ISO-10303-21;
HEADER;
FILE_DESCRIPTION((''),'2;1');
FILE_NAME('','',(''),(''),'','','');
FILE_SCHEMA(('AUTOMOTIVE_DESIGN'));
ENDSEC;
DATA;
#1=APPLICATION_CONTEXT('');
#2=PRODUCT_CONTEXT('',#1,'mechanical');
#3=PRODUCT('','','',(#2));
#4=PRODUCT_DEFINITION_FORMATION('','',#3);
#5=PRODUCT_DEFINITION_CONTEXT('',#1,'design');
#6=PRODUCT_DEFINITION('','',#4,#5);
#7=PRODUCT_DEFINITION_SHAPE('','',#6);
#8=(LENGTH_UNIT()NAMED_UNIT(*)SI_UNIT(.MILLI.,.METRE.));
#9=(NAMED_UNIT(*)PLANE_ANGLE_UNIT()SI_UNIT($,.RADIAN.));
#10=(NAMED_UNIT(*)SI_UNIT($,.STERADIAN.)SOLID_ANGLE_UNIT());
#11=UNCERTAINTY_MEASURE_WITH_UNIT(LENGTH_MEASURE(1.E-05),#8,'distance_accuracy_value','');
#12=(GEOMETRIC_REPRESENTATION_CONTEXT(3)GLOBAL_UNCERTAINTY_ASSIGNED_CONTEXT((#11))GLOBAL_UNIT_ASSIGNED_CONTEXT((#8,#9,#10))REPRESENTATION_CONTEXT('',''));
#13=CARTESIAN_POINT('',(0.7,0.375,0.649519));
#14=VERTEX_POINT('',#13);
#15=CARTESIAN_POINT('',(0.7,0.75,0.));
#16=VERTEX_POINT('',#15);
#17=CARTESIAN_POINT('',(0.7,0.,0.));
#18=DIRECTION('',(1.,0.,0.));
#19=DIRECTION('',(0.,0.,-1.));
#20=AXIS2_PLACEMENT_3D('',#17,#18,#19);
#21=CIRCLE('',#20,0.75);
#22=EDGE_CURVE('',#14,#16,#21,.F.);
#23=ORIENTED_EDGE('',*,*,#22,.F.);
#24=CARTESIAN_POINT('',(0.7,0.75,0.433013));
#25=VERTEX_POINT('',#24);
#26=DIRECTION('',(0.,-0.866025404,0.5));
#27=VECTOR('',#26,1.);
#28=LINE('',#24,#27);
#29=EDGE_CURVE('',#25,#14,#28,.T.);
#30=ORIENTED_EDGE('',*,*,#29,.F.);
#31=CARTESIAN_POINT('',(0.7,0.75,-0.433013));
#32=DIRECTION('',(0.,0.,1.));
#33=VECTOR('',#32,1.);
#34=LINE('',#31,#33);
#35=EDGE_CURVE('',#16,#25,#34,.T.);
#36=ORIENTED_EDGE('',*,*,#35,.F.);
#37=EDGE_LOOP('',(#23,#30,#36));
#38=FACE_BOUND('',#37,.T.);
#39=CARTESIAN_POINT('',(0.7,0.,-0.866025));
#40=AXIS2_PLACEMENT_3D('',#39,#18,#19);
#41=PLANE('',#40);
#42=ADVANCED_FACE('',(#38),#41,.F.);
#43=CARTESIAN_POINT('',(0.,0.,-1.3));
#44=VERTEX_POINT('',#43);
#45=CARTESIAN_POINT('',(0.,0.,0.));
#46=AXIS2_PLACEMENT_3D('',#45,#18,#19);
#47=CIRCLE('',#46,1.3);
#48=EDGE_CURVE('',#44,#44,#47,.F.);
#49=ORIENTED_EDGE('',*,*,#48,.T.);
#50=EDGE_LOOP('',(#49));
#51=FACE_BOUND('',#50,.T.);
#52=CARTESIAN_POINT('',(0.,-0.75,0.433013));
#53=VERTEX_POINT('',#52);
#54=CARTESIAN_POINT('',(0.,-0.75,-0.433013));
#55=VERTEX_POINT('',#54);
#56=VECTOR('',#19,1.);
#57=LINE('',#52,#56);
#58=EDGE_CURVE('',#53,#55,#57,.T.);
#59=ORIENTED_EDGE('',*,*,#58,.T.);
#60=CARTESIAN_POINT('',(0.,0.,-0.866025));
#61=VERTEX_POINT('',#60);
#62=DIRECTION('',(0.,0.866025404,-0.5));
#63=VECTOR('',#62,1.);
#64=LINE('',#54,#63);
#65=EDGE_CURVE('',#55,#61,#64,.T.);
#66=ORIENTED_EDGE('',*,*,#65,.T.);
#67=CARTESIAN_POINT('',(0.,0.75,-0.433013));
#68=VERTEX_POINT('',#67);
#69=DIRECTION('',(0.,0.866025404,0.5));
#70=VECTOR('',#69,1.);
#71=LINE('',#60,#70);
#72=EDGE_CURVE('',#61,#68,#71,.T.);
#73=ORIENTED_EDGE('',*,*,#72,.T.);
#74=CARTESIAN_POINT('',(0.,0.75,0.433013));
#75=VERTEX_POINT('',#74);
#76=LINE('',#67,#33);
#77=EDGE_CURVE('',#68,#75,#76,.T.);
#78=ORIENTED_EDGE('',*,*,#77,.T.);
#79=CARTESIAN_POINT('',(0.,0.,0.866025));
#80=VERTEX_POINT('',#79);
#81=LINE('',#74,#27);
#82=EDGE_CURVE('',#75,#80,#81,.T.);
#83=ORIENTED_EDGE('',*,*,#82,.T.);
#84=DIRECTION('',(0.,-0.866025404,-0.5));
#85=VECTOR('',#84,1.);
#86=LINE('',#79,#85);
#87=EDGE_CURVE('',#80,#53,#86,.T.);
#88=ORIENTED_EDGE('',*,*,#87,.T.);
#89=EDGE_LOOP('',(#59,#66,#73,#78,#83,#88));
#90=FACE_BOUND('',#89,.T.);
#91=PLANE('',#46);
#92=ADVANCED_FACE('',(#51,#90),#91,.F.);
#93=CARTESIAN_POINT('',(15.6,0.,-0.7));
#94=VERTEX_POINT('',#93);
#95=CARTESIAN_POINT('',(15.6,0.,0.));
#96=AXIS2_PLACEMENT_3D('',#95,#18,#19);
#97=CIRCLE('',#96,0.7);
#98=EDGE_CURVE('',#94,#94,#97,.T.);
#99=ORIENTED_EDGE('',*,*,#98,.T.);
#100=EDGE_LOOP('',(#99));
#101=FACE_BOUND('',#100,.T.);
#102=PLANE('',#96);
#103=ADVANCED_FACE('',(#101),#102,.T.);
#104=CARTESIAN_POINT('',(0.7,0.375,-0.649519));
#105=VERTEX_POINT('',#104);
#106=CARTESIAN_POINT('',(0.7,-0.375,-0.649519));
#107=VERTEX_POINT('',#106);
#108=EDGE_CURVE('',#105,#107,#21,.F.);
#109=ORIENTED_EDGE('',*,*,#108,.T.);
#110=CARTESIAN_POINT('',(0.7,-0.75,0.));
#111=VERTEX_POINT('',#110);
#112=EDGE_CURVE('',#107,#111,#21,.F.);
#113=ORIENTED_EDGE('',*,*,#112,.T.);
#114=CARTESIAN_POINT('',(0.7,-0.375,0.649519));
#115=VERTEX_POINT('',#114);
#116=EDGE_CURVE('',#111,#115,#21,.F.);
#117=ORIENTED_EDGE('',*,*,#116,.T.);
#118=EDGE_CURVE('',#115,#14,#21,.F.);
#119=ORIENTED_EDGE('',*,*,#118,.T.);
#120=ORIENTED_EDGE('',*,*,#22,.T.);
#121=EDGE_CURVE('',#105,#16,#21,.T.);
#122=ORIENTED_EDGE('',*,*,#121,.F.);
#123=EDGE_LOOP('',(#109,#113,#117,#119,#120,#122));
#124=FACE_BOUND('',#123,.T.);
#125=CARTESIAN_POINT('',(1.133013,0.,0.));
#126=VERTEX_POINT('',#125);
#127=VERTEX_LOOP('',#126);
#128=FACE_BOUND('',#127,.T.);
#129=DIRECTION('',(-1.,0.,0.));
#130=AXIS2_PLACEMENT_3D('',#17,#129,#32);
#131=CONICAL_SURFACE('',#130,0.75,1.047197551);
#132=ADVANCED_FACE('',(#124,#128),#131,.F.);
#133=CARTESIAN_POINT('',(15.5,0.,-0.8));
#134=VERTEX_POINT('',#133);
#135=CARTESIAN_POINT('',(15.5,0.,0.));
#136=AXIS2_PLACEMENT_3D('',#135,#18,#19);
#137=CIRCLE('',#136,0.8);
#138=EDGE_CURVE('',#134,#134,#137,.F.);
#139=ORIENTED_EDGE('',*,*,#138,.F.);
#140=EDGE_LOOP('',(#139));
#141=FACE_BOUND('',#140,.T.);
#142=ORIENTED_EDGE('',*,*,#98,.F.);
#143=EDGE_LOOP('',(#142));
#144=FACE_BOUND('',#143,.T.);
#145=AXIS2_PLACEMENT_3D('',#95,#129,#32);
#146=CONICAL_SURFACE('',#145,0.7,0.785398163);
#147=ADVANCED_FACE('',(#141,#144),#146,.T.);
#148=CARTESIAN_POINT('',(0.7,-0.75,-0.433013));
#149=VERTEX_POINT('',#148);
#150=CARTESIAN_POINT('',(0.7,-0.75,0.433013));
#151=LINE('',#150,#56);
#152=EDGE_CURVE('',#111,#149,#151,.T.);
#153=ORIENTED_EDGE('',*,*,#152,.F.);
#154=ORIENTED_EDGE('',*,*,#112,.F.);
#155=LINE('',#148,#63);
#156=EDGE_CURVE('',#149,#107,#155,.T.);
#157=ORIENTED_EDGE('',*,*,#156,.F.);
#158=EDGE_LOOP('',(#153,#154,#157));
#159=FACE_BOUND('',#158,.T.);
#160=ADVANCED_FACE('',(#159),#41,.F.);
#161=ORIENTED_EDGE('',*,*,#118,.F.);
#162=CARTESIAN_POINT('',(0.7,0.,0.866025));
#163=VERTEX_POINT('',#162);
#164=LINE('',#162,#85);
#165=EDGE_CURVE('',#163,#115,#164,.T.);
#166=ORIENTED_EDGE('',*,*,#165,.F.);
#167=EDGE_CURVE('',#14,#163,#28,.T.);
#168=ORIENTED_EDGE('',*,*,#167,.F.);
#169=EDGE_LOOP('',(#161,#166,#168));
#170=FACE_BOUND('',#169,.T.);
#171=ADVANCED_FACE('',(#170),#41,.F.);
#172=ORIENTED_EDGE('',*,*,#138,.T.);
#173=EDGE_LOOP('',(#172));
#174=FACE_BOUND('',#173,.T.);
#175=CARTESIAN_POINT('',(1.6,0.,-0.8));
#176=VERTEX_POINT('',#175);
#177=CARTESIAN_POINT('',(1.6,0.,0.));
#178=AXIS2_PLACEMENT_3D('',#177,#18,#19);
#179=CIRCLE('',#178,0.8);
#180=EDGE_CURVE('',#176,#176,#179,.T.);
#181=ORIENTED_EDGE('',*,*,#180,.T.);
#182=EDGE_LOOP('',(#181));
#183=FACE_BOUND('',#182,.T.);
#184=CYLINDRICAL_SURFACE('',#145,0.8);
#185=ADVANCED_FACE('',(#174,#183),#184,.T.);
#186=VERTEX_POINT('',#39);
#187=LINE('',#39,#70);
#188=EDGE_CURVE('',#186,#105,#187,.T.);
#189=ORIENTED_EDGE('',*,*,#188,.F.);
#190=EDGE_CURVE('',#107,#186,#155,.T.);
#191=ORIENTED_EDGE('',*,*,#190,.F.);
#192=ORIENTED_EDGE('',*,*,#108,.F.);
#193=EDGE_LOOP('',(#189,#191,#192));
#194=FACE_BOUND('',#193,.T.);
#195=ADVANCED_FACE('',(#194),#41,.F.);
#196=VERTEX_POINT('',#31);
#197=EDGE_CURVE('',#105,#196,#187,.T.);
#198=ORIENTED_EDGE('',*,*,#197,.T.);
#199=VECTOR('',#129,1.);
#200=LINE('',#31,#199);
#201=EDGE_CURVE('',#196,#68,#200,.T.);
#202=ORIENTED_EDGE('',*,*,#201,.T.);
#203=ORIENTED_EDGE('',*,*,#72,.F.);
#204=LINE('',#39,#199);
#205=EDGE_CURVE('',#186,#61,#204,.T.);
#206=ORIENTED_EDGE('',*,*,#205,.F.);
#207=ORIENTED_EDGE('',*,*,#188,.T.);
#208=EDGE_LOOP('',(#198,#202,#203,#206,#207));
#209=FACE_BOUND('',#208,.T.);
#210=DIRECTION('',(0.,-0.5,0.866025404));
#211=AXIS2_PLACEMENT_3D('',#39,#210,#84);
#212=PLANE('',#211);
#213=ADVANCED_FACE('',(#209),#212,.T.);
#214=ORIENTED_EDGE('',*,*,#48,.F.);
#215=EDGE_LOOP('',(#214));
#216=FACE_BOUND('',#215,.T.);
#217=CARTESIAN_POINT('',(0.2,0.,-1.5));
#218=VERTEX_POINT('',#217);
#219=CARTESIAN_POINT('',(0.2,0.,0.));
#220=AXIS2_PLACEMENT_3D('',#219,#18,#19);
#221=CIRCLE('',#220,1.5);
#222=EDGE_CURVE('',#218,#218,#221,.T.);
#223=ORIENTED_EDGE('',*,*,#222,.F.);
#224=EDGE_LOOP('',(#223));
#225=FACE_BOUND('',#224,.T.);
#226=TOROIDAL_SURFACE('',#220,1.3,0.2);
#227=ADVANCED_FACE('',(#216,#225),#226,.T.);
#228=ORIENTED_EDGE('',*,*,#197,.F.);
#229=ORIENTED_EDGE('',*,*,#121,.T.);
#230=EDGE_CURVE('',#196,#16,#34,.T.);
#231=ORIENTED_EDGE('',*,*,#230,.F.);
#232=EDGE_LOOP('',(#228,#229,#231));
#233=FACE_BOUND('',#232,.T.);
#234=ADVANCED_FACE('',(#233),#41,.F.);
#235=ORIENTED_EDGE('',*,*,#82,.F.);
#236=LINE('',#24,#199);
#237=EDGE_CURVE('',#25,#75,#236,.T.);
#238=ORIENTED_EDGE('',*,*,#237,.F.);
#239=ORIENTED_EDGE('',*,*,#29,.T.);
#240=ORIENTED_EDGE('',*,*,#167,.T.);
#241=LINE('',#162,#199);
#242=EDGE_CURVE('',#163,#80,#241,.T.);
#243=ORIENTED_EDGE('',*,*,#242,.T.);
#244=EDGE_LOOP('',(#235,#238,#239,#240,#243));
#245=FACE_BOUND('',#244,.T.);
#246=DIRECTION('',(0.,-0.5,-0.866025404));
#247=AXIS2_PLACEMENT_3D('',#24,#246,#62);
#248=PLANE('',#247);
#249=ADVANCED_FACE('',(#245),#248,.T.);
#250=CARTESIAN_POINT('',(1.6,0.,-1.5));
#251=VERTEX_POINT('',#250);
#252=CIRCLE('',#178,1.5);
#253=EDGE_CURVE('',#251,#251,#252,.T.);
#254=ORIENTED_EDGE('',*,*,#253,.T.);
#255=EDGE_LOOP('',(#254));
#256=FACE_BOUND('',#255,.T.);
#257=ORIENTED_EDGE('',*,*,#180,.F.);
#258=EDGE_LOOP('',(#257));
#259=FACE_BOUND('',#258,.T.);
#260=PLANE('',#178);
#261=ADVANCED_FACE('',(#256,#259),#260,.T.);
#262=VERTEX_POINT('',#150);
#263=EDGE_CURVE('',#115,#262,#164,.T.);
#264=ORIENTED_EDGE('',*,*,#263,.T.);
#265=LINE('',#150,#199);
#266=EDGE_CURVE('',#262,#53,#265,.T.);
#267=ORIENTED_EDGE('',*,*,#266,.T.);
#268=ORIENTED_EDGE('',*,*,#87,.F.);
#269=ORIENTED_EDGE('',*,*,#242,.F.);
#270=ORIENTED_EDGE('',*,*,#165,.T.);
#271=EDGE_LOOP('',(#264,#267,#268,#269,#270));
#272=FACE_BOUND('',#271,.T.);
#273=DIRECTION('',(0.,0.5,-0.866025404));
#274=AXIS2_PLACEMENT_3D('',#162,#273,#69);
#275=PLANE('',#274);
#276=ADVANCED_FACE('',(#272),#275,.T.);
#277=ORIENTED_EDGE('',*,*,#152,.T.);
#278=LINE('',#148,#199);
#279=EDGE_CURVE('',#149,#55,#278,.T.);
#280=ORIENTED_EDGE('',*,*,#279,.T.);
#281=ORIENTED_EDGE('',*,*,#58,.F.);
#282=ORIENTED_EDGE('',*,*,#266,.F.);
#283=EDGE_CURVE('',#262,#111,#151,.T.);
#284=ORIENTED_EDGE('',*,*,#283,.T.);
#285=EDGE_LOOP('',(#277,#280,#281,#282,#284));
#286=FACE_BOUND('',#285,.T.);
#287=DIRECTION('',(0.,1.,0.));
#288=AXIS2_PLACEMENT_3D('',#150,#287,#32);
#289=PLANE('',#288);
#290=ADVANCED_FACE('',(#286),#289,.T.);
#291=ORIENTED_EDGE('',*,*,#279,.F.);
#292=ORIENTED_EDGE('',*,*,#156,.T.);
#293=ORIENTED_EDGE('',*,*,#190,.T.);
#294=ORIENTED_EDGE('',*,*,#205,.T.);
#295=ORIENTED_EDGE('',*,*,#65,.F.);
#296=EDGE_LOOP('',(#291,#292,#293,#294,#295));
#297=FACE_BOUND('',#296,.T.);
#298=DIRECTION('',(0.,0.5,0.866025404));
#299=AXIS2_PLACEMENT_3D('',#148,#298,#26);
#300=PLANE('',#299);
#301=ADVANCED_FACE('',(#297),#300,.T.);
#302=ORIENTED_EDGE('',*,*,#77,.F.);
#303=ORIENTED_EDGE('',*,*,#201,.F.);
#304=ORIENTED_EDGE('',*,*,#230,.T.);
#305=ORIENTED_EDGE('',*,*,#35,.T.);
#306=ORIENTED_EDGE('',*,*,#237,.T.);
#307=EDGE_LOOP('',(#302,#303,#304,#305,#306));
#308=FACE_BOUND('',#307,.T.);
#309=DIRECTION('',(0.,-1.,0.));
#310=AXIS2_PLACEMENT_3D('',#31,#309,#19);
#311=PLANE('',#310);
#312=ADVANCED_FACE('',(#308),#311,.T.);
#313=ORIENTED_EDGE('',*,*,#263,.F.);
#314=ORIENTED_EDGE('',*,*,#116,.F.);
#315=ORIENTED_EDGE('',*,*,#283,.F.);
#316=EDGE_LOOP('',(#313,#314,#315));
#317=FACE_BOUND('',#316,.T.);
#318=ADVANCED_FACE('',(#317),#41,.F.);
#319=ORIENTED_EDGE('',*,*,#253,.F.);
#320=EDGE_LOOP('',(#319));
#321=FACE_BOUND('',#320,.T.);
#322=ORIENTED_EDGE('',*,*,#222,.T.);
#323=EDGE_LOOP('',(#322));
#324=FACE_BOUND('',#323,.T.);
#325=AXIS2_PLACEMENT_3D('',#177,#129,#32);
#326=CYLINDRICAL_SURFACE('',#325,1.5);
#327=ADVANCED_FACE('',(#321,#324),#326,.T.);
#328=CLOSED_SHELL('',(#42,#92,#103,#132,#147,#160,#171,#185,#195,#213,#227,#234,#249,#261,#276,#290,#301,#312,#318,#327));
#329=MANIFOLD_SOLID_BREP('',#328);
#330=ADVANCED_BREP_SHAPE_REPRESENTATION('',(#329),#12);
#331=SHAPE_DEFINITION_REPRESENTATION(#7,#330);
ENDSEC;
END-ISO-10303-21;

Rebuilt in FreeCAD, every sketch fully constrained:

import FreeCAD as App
import Part
import Sketcher
Q = App.Units.Quantity


def edges_at(feature, points):
    """Names of the edges that pass closest to the given points."""
    edges = feature.Shape.Edges
    near = lambda p: min(range(len(edges)), key=lambda i: edges[i].distToShape(Part.Vertex(*p))[0])
    return sorted({f"Edge{near(p) + 1}" for p in points})


def add_polygon(sketch, points):
    """Adds a closed chain of lines whose ends are joined by coincident constraints."""
    first, n = sketch.GeometryCount, len(points)
    for a, b in zip(points, points[1:] + points[:1]):
        sketch.addGeometry(Part.LineSegment(App.Vector(*a, 0), App.Vector(*b, 0)), False)
    for i in range(n):
        sketch.addConstraint(Sketcher.Constraint("Coincident", first + i, 2, first + (i + 1) % n, 1))

doc = App.newDocument("Part")
body = doc.addObject("PartDesign::Body", "Body")

# Sketch on YZ plane
sketch1 = body.newObject("Sketcher::SketchObject", "Sketch")
sketch1.AttachmentSupport = (doc.getObject("YZ_Plane"), [""])
sketch1.MapMode = "FlatFace"
sketch1.addGeometry(Part.Circle(App.Vector(0, 0, 0), App.Vector(0, 0, 1), 1.5), False)
sketch1.addConstraint(Sketcher.Constraint("Coincident", 0, 3, -1, 1))
sketch1.addConstraint(Sketcher.Constraint("Diameter", 0, 3.0))
pad1 = body.newObject("PartDesign::Pad", "Pad")
pad1.Profile = sketch1
pad1.Length = 1.6

# Sketch on YZ plane
sketch2 = body.newObject("Sketcher::SketchObject", "Sketch001")
sketch2.AttachmentSupport = (doc.getObject("YZ_Plane"), [""])
sketch2.MapMode = "FlatFace"
sketch2.AttachmentOffset = App.Placement(App.Vector(0, 0, 1.6), App.Rotation())
sketch2.addGeometry(Part.Circle(App.Vector(0, 0, 0), App.Vector(0, 0, 1), 0.8), False)
sketch2.addConstraint(Sketcher.Constraint("Coincident", 0, 3, -1, 1))
sketch2.addConstraint(Sketcher.Constraint("Diameter", 0, 1.6))
pad2 = body.newObject("PartDesign::Pad", "Pad001")
pad2.Profile = sketch2
pad2.Length = 14

# Sketch on YZ plane
sketch3 = body.newObject("Sketcher::SketchObject", "Sketch002")
sketch3.AttachmentSupport = (doc.getObject("YZ_Plane"), [""])
sketch3.MapMode = "FlatFace"
add_polygon(sketch3, [(0, -0.866025), (0.75, -0.433013), (0.75, 0.433013), (0, 0.866025), (-0.75, 0.433013), (-0.75, -0.433013)])  # lines 0-5
sketch3.addConstraint(Sketcher.Constraint("Vertical", 1))
sketch3.addConstraint(Sketcher.Constraint("Vertical", 4))
sketch3.addConstraint(Sketcher.Constraint("Symmetric", 0, 2, 3, 2, -1, 1))
sketch3.addConstraint(Sketcher.Constraint("Symmetric", 2, 2, 5, 2, -1, 1))
sketch3.addConstraint(Sketcher.Constraint("PointOnObject", 2, 2, -2))
sketch3.addConstraint(Sketcher.Constraint("Parallel", 2, 5))
sketch3.addConstraint(Sketcher.Constraint("Horizontal", 1, 2, 3, 2))
sketch3.addConstraint(Sketcher.Constraint("Angle", 0, Q("30 deg")))
sketch3.addConstraint(Sketcher.Constraint("DistanceX", 3, 2, 1, 2, 1.5))
sketch3.addConstraint(Sketcher.Constraint("DistanceY", 1, 1, 1, 2, 0.866025))
pocket1 = body.newObject("PartDesign::Pocket", "Pocket")
pocket1.Profile = sketch3
pocket1.Length = 0.7
pocket1.Reversed = True

# Sketch on XY plane
sketch4 = body.newObject("Sketcher::SketchObject", "Sketch003")
sketch4.AttachmentSupport = (doc.getObject("XY_Plane"), [""])
sketch4.MapMode = "FlatFace"
add_polygon(sketch4, [(0.7, -0.75), (1.133013, 0), (0.7, 0)])  # lines 0-2
sketch4.addConstraint(Sketcher.Constraint("Horizontal", 1))
sketch4.addConstraint(Sketcher.Constraint("Vertical", 2))
sketch4.addConstraint(Sketcher.Constraint("PointOnObject", 0, 2, -1))
sketch4.addConstraint(Sketcher.Constraint("Angle", 0, Q("60 deg")))
sketch4.addConstraint(Sketcher.Constraint("DistanceY", 2, 2, 2, 1, 0.75))
sketch4.addConstraint(Sketcher.Constraint("DistanceX", -1, 1, 1, 2, 0.7))
groove = body.newObject("PartDesign::Groove", "Groove")
groove.Profile = sketch4
groove.ReferenceAxis = (sketch4, ["H_Axis"])
groove.Angle = 360
doc.recompute()

fillet = body.newObject("PartDesign::Fillet", "Fillet")
fillet.Base = (groove, edges_at(groove, [(0, 0, 1.5)]))
fillet.Radius = 0.2
doc.recompute()

chamfer = body.newObject("PartDesign::Chamfer", "Chamfer")
chamfer.Base = (fillet, edges_at(fillet, [(15.6, 0, 0.8)]))
chamfer.Size = 0.1

doc.recompute()
